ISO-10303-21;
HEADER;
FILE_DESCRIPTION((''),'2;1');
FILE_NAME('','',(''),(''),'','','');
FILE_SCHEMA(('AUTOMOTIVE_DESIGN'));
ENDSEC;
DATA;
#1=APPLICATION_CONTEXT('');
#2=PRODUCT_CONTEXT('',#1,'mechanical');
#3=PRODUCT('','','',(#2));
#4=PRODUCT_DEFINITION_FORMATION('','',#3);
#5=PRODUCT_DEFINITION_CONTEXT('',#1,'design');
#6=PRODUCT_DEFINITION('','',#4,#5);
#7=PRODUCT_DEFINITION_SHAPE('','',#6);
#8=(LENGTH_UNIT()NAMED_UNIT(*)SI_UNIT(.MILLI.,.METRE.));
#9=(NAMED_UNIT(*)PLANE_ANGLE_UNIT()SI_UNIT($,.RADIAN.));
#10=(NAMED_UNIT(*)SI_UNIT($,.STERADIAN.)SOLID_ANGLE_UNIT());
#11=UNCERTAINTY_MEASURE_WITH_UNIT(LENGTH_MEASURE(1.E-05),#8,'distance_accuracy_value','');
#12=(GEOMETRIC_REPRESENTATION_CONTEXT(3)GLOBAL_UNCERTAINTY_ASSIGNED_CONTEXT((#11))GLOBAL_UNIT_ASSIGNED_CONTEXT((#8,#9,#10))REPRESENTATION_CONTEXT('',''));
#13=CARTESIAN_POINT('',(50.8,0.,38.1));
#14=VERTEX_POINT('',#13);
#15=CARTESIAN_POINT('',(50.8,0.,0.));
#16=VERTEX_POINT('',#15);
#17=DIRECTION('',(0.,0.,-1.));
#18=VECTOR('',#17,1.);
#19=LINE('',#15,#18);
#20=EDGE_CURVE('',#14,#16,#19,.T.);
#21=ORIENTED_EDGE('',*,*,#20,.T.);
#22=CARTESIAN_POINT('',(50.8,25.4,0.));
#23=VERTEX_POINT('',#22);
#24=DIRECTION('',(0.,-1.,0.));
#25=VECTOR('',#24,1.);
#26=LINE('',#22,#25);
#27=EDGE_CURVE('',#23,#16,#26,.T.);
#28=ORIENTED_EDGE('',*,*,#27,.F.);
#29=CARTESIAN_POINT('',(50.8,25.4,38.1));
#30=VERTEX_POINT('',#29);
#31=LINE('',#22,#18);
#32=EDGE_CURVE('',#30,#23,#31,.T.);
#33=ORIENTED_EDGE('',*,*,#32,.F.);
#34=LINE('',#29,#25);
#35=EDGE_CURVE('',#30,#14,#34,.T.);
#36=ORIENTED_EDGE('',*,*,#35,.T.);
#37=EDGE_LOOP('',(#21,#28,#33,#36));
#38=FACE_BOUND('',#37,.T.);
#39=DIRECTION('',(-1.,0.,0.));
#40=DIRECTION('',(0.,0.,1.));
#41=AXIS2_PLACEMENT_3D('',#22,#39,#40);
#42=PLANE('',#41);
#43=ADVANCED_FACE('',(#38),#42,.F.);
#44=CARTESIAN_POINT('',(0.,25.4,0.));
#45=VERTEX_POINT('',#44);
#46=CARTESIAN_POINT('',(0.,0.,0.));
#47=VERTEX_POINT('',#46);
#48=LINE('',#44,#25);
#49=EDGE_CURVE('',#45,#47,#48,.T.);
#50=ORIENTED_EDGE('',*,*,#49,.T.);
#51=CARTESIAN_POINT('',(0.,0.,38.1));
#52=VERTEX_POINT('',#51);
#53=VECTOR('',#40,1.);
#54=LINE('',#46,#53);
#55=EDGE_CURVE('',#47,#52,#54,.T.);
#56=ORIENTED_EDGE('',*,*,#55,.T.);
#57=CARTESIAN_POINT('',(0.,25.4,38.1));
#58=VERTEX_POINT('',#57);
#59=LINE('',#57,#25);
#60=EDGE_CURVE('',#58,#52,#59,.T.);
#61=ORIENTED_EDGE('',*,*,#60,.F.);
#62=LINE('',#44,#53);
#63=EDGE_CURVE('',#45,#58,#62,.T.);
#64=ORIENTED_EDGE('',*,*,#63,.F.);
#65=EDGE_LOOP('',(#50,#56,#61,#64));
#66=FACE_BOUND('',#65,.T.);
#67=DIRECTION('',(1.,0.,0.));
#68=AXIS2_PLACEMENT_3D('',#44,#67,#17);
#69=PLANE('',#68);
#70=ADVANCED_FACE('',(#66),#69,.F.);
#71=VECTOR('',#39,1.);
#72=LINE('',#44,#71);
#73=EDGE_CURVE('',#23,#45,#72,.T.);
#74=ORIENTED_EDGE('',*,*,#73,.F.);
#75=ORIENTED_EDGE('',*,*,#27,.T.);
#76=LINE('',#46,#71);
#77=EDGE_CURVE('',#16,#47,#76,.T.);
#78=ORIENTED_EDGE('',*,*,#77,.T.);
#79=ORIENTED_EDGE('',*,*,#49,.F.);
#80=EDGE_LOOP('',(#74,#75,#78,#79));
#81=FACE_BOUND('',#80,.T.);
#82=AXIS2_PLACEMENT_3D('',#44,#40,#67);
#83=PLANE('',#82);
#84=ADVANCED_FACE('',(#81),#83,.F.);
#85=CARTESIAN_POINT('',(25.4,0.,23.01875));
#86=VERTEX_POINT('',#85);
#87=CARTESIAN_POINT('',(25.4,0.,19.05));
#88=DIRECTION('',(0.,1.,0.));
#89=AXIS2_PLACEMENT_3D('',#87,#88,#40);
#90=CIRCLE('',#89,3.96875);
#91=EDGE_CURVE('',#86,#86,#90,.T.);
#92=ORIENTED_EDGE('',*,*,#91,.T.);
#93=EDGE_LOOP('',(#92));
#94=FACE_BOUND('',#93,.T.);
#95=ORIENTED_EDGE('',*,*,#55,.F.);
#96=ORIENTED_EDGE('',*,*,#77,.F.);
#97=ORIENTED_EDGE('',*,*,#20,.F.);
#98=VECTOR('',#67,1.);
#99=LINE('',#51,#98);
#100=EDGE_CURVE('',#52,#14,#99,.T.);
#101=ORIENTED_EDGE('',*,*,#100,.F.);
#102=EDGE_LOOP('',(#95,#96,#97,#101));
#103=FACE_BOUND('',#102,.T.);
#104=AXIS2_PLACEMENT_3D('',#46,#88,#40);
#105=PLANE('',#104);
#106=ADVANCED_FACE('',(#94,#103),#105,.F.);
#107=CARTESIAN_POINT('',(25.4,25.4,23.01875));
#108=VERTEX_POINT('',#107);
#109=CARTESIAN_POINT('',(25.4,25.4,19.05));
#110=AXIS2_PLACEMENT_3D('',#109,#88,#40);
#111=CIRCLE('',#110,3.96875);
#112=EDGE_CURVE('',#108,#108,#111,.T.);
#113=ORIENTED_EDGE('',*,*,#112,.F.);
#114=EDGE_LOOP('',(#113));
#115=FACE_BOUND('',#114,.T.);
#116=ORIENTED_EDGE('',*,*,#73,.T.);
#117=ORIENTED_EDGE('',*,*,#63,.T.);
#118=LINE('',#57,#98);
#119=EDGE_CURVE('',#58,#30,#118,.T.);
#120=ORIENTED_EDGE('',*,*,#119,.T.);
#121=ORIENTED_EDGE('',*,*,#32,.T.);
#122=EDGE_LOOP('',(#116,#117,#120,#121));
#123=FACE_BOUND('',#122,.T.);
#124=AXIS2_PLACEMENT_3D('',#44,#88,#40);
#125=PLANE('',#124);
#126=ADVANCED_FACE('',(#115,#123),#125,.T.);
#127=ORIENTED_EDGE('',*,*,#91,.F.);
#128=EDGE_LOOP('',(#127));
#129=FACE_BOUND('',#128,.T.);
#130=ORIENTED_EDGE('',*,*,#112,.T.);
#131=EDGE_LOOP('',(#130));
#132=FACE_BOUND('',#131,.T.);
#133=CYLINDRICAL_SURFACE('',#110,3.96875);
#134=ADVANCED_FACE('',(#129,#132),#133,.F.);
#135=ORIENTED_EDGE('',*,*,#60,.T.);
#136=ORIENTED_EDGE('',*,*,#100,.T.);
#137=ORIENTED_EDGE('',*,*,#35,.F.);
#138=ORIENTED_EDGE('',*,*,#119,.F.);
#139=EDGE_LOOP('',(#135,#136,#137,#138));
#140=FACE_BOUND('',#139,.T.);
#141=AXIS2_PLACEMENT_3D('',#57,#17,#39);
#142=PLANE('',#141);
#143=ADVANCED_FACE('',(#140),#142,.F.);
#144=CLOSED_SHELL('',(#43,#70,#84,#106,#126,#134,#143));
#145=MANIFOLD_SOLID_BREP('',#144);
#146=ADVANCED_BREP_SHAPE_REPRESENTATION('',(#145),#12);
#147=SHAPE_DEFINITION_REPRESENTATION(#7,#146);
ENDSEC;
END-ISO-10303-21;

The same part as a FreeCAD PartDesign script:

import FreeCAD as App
import Part
import Sketcher
Q = App.Units.Quantity

doc = App.newDocument("Part")
body = doc.addObject("PartDesign::Body", "Body")

# Sketch on XZ plane
sketch1 = doc.addObject("Sketcher::SketchObject", "Sketch")
body.addObject(sketch1)
sketch1.AttachmentSupport = (doc.XZ_Plane, [""])
sketch1.MapMode = "FlatFace"
sketch1.addGeometry([
    Part.LineSegment(App.Vector(0, 0, 0), App.Vector(0, 38, 0)),
    Part.LineSegment(App.Vector(0, 38, 0), App.Vector(51, 38, 0)),
    Part.LineSegment(App.Vector(51, 38, 0), App.Vector(51, 0, 0)),
    Part.LineSegment(App.Vector(51, 0, 0), App.Vector(0, 0, 0)),
], False)
sketch1.addConstraint([
    Sketcher.Constraint("Coincident", 0, 2, 1, 1),
    Sketcher.Constraint("Coincident", 1, 2, 2, 1),
    Sketcher.Constraint("Coincident", 2, 2, 3, 1),
    Sketcher.Constraint("Coincident", 3, 2, 0, 1),
    Sketcher.Constraint("Vertical", 0),
    Sketcher.Constraint("Horizontal", 1),
    Sketcher.Constraint("Vertical", 2),
    Sketcher.Constraint("Horizontal", 3),
    Sketcher.Constraint("Coincident", 3, 2, -1, 1),
    Sketcher.Constraint("DistanceX", 1, 1, 1, 2, Q("2 in")),
    Sketcher.Constraint("DistanceY", 0, 1, 0, 2, Q("1.5 in")),
])
pad1 = doc.addObject("PartDesign::Pad", "Pad")
body.addObject(pad1)
pad1.Profile = sketch1
pad1.Length = Q("1 in")
pad1.Reversed = True

# Sketch on XZ plane
sketch2 = doc.addObject("Sketcher::SketchObject", "Sketch001")
body.addObject(sketch2)
sketch2.AttachmentSupport = (doc.XZ_Plane, [""])
sketch2.MapMode = "FlatFace"
sketch2.AttachmentOffset = App.Placement(App.Vector(0, 0, -1 * 25.4), App.Rotation())
sketch2.addGeometry(Part.Circle(App.Vector(25.4, 19.1, 0), App.Vector(0, 0, 1), 4), False)
sketch2.addConstraint([
    Sketcher.Constraint("Diameter", 0, Q("0.3125 in")),
    Sketcher.Constraint("DistanceX", -1, 1, 0, 3, Q("1 in")),
    Sketcher.Constraint("DistanceY", -1, 1, 0, 3, Q("0.75 in")),
])
doc.recompute()
hole = doc.addObject("PartDesign::Hole", "Hole")
body.addObject(hole)
hole.Profile = sketch2
hole.ThreadType = "None"
hole.Diameter = Q("0.3125 in")
hole.DepthType = "ThroughAll"
hole.Reversed = True

doc.recompute()
